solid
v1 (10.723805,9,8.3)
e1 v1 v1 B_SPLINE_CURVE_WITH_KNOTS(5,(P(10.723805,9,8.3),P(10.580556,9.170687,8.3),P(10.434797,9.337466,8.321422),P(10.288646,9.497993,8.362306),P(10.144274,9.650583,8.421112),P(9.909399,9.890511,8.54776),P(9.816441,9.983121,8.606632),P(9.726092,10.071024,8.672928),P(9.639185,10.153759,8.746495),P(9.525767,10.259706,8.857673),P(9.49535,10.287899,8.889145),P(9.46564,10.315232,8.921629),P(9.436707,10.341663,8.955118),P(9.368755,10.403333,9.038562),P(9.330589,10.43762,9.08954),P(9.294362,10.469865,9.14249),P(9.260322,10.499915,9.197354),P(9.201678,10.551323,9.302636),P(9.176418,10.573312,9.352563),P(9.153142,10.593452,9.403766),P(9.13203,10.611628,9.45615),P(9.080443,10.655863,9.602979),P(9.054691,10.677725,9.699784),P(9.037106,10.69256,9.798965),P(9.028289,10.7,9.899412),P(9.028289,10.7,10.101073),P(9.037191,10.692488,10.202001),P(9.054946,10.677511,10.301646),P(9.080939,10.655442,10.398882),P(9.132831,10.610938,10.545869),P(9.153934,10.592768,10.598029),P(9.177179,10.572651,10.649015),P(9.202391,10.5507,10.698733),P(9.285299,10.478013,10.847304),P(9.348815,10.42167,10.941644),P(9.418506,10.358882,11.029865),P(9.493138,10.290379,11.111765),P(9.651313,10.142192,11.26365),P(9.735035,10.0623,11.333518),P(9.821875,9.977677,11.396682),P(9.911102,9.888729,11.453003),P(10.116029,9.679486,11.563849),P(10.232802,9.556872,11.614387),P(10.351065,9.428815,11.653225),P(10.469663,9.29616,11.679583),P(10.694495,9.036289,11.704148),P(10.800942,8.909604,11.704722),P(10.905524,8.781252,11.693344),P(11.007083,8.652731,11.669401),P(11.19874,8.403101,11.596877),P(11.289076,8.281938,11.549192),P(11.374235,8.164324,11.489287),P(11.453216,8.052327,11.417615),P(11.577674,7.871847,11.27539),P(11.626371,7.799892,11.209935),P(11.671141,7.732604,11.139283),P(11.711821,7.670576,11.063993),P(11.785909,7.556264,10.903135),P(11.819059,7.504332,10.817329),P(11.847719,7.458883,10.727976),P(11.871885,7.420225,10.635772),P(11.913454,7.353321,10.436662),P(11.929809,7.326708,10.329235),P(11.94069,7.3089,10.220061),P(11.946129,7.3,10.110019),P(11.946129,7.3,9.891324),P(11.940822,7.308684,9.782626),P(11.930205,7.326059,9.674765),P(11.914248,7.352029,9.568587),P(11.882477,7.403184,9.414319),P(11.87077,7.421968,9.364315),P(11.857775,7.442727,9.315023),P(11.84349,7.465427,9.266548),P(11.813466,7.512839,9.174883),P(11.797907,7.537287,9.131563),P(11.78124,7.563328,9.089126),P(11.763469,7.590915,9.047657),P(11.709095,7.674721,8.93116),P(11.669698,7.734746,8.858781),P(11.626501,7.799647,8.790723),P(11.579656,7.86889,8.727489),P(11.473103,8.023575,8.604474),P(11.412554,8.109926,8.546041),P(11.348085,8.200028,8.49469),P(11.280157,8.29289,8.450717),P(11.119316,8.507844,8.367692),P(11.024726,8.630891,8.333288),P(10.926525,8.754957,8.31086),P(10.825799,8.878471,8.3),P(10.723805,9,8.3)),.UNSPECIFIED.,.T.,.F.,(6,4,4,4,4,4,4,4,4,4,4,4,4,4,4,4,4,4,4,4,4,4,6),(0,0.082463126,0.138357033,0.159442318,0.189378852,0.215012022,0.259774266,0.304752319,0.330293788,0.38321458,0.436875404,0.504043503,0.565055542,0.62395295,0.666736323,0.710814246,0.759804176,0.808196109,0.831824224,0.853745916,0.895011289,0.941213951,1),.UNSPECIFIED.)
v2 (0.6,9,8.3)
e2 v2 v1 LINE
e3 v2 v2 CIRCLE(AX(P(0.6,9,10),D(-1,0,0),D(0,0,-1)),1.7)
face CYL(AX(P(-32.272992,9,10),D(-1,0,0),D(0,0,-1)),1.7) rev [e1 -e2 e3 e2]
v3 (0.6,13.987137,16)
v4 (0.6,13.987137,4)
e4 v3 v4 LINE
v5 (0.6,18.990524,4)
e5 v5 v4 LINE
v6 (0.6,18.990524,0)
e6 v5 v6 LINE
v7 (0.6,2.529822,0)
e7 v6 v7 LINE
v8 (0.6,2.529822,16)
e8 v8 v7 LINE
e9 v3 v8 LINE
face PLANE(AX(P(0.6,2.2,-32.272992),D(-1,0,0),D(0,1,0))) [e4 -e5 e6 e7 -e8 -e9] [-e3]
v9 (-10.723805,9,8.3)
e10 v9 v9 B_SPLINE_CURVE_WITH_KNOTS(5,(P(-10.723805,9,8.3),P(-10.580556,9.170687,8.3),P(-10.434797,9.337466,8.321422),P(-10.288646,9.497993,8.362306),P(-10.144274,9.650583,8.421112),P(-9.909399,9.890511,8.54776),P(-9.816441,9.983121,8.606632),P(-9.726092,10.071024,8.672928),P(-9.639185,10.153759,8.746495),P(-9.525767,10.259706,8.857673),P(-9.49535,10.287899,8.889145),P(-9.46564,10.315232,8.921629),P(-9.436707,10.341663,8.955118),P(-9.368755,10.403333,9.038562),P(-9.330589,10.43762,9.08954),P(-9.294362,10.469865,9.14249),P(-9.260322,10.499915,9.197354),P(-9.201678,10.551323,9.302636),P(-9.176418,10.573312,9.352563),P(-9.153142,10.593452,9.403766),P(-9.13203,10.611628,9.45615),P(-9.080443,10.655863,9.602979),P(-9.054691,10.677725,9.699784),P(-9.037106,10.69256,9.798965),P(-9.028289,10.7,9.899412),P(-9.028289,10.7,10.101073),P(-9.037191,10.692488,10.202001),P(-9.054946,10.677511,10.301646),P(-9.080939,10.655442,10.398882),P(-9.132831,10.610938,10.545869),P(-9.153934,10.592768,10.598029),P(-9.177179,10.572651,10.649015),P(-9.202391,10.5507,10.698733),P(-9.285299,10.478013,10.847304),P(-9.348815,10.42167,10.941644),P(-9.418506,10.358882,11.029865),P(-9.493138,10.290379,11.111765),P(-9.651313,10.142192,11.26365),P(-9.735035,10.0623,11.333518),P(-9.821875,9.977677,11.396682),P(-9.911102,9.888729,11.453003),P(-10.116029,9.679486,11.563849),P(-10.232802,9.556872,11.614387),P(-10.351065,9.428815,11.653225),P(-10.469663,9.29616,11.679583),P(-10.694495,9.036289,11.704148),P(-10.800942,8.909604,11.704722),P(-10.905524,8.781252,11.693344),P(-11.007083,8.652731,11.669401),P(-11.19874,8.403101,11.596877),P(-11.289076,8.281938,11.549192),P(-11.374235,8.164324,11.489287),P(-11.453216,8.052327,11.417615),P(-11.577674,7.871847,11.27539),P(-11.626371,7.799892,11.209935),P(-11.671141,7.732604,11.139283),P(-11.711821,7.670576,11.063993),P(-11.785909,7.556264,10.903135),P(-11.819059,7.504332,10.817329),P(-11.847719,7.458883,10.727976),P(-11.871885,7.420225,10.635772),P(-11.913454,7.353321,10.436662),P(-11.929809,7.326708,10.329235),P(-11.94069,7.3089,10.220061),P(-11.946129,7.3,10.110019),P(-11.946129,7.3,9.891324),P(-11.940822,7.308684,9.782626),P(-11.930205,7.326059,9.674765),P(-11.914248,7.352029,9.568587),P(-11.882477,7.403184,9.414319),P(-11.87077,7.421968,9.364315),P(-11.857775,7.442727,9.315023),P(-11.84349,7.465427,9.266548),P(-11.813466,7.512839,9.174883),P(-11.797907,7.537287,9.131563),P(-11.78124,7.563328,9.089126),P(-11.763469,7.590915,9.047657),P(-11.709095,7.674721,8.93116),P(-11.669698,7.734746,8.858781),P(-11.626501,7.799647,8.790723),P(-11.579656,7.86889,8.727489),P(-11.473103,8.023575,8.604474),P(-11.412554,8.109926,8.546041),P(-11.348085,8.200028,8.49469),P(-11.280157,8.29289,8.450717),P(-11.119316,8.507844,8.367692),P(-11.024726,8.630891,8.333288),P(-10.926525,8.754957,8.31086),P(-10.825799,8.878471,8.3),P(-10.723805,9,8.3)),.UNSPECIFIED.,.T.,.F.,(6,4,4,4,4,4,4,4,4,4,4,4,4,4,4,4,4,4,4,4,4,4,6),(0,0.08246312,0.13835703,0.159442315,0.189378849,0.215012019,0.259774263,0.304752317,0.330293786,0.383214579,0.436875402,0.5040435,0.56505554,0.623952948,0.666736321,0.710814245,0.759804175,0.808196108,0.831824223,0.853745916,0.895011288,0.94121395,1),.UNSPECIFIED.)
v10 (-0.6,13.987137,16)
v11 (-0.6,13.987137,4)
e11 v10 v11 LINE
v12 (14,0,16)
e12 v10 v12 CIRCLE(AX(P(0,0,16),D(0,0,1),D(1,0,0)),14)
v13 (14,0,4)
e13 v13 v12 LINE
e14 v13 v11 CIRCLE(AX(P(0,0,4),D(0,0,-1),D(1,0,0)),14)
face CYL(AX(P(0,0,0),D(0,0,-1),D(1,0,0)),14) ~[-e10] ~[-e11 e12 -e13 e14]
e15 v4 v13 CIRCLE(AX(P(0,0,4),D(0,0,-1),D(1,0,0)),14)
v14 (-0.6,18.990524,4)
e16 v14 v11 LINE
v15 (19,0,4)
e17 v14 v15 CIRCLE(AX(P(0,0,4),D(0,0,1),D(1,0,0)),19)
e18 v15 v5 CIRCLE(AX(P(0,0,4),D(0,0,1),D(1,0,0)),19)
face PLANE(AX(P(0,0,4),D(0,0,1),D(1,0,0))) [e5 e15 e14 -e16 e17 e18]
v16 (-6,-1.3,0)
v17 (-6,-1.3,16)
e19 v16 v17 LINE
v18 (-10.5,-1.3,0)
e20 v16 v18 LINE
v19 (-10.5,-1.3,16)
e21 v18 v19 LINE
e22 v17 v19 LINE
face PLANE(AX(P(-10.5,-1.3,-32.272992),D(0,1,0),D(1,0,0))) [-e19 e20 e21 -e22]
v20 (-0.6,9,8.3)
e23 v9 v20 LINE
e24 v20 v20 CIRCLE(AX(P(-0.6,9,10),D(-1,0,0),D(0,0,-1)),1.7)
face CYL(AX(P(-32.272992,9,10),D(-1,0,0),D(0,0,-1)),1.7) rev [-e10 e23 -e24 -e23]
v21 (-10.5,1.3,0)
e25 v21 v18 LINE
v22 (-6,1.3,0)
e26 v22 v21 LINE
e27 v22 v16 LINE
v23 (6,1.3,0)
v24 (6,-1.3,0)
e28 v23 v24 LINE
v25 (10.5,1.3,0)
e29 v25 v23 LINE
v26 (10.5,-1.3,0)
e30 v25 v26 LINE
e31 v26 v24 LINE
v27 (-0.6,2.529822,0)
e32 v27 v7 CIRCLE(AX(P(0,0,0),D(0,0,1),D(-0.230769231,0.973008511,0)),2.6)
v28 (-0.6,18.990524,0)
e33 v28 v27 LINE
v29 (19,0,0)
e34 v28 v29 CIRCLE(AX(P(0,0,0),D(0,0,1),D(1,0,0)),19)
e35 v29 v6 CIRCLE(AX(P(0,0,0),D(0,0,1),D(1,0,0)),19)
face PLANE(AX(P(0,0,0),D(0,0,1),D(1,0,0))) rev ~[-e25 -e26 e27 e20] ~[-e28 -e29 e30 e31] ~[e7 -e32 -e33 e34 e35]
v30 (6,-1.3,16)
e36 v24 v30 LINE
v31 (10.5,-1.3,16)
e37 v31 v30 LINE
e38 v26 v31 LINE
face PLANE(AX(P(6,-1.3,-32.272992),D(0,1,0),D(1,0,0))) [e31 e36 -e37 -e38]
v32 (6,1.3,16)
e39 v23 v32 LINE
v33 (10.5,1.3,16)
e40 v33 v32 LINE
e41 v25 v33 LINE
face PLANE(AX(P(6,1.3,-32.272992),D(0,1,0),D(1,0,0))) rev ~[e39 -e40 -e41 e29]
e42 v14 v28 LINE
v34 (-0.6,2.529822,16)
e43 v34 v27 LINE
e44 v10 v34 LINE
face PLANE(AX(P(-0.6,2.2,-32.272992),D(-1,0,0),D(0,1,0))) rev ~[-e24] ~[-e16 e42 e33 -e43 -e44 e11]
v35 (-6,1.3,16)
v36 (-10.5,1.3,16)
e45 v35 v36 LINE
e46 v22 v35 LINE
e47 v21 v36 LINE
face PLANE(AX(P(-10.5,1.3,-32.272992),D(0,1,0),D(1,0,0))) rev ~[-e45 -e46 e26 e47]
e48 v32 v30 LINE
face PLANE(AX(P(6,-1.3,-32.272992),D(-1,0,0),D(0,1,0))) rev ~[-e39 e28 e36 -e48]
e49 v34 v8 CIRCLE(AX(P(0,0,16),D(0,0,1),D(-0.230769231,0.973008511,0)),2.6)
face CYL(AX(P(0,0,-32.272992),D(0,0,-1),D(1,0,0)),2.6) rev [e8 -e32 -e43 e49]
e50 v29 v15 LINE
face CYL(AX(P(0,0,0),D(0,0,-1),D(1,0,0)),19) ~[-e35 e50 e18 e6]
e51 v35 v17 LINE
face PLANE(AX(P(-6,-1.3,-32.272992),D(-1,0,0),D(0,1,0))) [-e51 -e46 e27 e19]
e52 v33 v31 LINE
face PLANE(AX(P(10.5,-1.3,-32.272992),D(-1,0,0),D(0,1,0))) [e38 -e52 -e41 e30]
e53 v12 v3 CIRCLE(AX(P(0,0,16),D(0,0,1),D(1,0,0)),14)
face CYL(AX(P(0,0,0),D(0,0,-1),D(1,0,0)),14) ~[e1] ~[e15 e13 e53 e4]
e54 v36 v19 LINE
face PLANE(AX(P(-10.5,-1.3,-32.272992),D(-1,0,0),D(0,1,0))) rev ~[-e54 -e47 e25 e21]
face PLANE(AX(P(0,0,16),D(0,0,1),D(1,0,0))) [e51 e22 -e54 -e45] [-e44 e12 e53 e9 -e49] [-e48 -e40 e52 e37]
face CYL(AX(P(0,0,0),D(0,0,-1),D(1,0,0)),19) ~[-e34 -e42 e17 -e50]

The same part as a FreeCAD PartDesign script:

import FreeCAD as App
import Part
import Sketcher

V = App.Vector

doc = App.newDocument("Part")
params = doc.addObject("Spreadsheet::Sheet", "Params")
for row, (alias, value) in enumerate([
    ("sketch1_diameter", "38 mm"),
    ("pad1_length", "4 mm"),
    ("sketch2_diameter", "28 mm"),
    ("pad2_length", "16 mm"),
    ("sketch3_diameter", "5.2 mm"),
    ("sketch4_width", "1.2 mm"),
    ("sketch4_height", "17.8 mm"),
    ("sketch5_width", "4.5 mm"),
    ("sketch5_height", "2.6 mm"),
    ("sketch6_diameter", "3.4 mm"),
], start=1):
    params.set(f"A{row}", alias)
    params.set(f"B{row}", "=" + value)
    params.setAlias(f"B{row}", alias)

body = doc.addObject("PartDesign::Body", "Body")

# Sketch on XY plane
sketch1 = body.newObject("Sketcher::SketchObject", "Sketch")
sketch1.AttachmentSupport = (doc.getObject("XY_Plane"), [""])
sketch1.MapMode = "FlatFace"
sketch1.addGeometry(Part.Circle(V(0, 0, 0), V(0, 0, 1), 19), False)
sketch1.addConstraint(Sketcher.Constraint("Coincident", 0, 3, -1, 1))
sketch1.addConstraint(Sketcher.Constraint("Diameter", 0, 38.0))
sketch1.setExpression("Constraints[1]", "Params.sketch1_diameter")
pad1 = body.newObject("PartDesign::Pad", "Pad")
pad1.Profile = sketch1
pad1.setExpression("Length", "Params.pad1_length")

# Sketch on XY plane
sketch2 = body.newObject("Sketcher::SketchObject", "Sketch001")
sketch2.AttachmentSupport = (doc.getObject("XY_Plane"), [""])
sketch2.MapMode = "FlatFace"
sketch2.addGeometry(Part.Circle(V(0, 0, 0), V(0, 0, 1), 14), False)
sketch2.addConstraint(Sketcher.Constraint("Coincident", 0, 3, -1, 1))
sketch2.addConstraint(Sketcher.Constraint("Diameter", 0, 28.0))
sketch2.setExpression("Constraints[1]", "Params.sketch2_diameter")
pad2 = body.newObject("PartDesign::Pad", "Pad001")
pad2.Profile = sketch2
pad2.setExpression("Length", "Params.pad2_length")

# Sketch on XY plane
sketch3 = body.newObject("Sketcher::SketchObject", "Sketch002")
sketch3.AttachmentSupport = (doc.getObject("XY_Plane"), [""])
sketch3.MapMode = "FlatFace"
sketch3.addGeometry(Part.Circle(V(0, 0, 0), V(0, 0, 1), 2.6), False)
sketch3.addConstraint(Sketcher.Constraint("Coincident", 0, 3, -1, 1))
sketch3.addConstraint(Sketcher.Constraint("Diameter", 0, 5.2))
sketch3.setExpression("Constraints[1]", "Params.sketch3_diameter")
pocket1 = body.newObject("PartDesign::Pocket", "Pocket")
pocket1.Profile = sketch3
pocket1.Type = "ThroughAll"
pocket1.Midplane = True

# Sketch on XY plane
sketch4 = body.newObject("Sketcher::SketchObject", "Sketch003")
sketch4.AttachmentSupport = (doc.getObject("XY_Plane"), [""])
sketch4.MapMode = "FlatFace"
sketch4.addGeometry(Part.LineSegment(V(-0.6, 20, 0), V(-0.6, 2.2, 0)), False)
sketch4.addGeometry(Part.LineSegment(V(-0.6, 2.2, 0), V(0.6, 2.2, 0)), False)
sketch4.addGeometry(Part.LineSegment(V(0.6, 2.2, 0), V(0.6, 20, 0)), False)
sketch4.addGeometry(Part.LineSegment(V(0.6, 20, 0), V(-0.6, 20, 0)), False)
sketch4.addConstraint(Sketcher.Constraint("Coincident", 0, 2, 1, 1))
sketch4.addConstraint(Sketcher.Constraint("Coincident", 1, 2, 2, 1))
sketch4.addConstraint(Sketcher.Constraint("Coincident", 2, 2, 3, 1))
sketch4.addConstraint(Sketcher.Constraint("Coincident", 3, 2, 0, 1))
sketch4.addConstraint(Sketcher.Constraint("Vertical", 0))
sketch4.addConstraint(Sketcher.Constraint("Horizontal", 1))
sketch4.addConstraint(Sketcher.Constraint("Vertical", 2))
sketch4.addConstraint(Sketcher.Constraint("Horizontal", 3))
sketch4.addConstraint(Sketcher.Constraint("DistanceX", 1, 1, 1, 2, 1.2))
sketch4.addConstraint(Sketcher.Constraint("DistanceY", 0, 2, 0, 1, 17.8))
sketch4.addConstraint(Sketcher.Constraint("DistanceY", -1, 1, 2, 2, 20.0))
sketch4.addConstraint(Sketcher.Constraint("DistanceX", 0, 2, -1, 1, 0.6))
sketch4.setExpression("Constraints[8]", "Params.sketch4_width")
sketch4.setExpression("Constraints[9]", "Params.sketch4_height")
pocket2 = body.newObject("PartDesign::Pocket", "Pocket001")
pocket2.Profile = sketch4
pocket2.Type = "ThroughAll"
pocket2.Midplane = True

# Sketch on XY plane
sketch5 = body.newObject("Sketcher::SketchObject", "Sketch004")
sketch5.AttachmentSupport = (doc.getObject("XY_Plane"), [""])
sketch5.MapMode = "FlatFace"
sketch5.addGeometry(Part.LineSegment(V(-10.5, 1.3, 0), V(-10.5, -1.3, 0)), False)
sketch5.addGeometry(Part.LineSegment(V(-10.5, -1.3, 0), V(-6, -1.3, 0)), False)
sketch5.addGeometry(Part.LineSegment(V(-6, -1.3, 0), V(-6, 1.3, 0)), False)
sketch5.addGeometry(Part.LineSegment(V(-6, 1.3, 0), V(-10.5, 1.3, 0)), False)
sketch5.addGeometry(Part.LineSegment(V(6, 1.3, 0), V(6, -1.3, 0)), False)
sketch5.addGeometry(Part.LineSegment(V(6, -1.3, 0), V(10.5, -1.3, 0)), False)
sketch5.addGeometry(Part.LineSegment(V(10.5, -1.3, 0), V(10.5, 1.3, 0)), False)
sketch5.addGeometry(Part.LineSegment(V(10.5, 1.3, 0), V(6, 1.3, 0)), False)
sketch5.addConstraint(Sketcher.Constraint("Coincident", 0, 2, 1, 1))
sketch5.addConstraint(Sketcher.Constraint("Coincident", 1, 2, 2, 1))
sketch5.addConstraint(Sketcher.Constraint("Coincident", 2, 2, 3, 1))
sketch5.addConstraint(Sketcher.Constraint("Coincident", 3, 2, 0, 1))
sketch5.addConstraint(Sketcher.Constraint("Coincident", 4, 2, 5, 1))
sketch5.addConstraint(Sketcher.Constraint("Coincident", 5, 2, 6, 1))
sketch5.addConstraint(Sketcher.Constraint("Coincident", 6, 2, 7, 1))
sketch5.addConstraint(Sketcher.Constraint("Coincident", 7, 2, 4, 1))
sketch5.addConstraint(Sketcher.Constraint("Vertical", 0))
sketch5.addConstraint(Sketcher.Constraint("Horizontal", 1))
sketch5.addConstraint(Sketcher.Constraint("Vertical", 2))
sketch5.addConstraint(Sketcher.Constraint("Horizontal", 3))
sketch5.addConstraint(Sketcher.Constraint("Vertical", 4))
sketch5.addConstraint(Sketcher.Constraint("Horizontal", 5))
sketch5.addConstraint(Sketcher.Constraint("Vertical", 6))
sketch5.addConstraint(Sketcher.Constraint("Horizontal", 7))
sketch5.addConstraint(Sketcher.Constraint("Symmetric", 2, 2, 4, 2, -1, 1))
sketch5.addConstraint(Sketcher.Constraint("Symmetric", 0, 2, 6, 2, -1, 1))
sketch5.addConstraint(Sketcher.Constraint("Horizontal", 1, 2, 4, 2))
sketch5.addConstraint(Sketcher.Constraint("DistanceX", 1, 1, 1, 2, 4.5))
sketch5.addConstraint(Sketcher.Constraint("DistanceY", 0, 2, 0, 1, 2.6))
sketch5.addConstraint(Sketcher.Constraint("DistanceX", 1, 2, -1, 1, 6.0))
sketch5.setExpression("Constraints[19]", "Params.sketch5_width")
sketch5.setExpression("Constraints[20]", "Params.sketch5_height")
pocket3 = body.newObject("PartDesign::Pocket", "Pocket002")
pocket3.Profile = sketch5
pocket3.Type = "ThroughAll"
pocket3.Midplane = True

# Sketch on YZ plane
sketch6 = body.newObject("Sketcher::SketchObject", "Sketch005")
sketch6.AttachmentSupport = (doc.getObject("YZ_Plane"), [""])
sketch6.MapMode = "FlatFace"
sketch6.addGeometry(Part.Circle(V(9, 10, 0), V(0, 0, 1), 1.7), False)
sketch6.addConstraint(Sketcher.Constraint("Diameter", 0, 3.4))
sketch6.addConstraint(Sketcher.Constraint("DistanceX", -1, 1, 0, 3, 9.0))
sketch6.addConstraint(Sketcher.Constraint("DistanceY", -1, 1, 0, 3, 10.0))
sketch6.setExpression("Constraints[0]", "Params.sketch6_diameter")
pocket4 = body.newObject("PartDesign::Pocket", "Pocket003")
pocket4.Profile = sketch6
pocket4.Type = "ThroughAll"
pocket4.Midplane = True

doc.recompute()
